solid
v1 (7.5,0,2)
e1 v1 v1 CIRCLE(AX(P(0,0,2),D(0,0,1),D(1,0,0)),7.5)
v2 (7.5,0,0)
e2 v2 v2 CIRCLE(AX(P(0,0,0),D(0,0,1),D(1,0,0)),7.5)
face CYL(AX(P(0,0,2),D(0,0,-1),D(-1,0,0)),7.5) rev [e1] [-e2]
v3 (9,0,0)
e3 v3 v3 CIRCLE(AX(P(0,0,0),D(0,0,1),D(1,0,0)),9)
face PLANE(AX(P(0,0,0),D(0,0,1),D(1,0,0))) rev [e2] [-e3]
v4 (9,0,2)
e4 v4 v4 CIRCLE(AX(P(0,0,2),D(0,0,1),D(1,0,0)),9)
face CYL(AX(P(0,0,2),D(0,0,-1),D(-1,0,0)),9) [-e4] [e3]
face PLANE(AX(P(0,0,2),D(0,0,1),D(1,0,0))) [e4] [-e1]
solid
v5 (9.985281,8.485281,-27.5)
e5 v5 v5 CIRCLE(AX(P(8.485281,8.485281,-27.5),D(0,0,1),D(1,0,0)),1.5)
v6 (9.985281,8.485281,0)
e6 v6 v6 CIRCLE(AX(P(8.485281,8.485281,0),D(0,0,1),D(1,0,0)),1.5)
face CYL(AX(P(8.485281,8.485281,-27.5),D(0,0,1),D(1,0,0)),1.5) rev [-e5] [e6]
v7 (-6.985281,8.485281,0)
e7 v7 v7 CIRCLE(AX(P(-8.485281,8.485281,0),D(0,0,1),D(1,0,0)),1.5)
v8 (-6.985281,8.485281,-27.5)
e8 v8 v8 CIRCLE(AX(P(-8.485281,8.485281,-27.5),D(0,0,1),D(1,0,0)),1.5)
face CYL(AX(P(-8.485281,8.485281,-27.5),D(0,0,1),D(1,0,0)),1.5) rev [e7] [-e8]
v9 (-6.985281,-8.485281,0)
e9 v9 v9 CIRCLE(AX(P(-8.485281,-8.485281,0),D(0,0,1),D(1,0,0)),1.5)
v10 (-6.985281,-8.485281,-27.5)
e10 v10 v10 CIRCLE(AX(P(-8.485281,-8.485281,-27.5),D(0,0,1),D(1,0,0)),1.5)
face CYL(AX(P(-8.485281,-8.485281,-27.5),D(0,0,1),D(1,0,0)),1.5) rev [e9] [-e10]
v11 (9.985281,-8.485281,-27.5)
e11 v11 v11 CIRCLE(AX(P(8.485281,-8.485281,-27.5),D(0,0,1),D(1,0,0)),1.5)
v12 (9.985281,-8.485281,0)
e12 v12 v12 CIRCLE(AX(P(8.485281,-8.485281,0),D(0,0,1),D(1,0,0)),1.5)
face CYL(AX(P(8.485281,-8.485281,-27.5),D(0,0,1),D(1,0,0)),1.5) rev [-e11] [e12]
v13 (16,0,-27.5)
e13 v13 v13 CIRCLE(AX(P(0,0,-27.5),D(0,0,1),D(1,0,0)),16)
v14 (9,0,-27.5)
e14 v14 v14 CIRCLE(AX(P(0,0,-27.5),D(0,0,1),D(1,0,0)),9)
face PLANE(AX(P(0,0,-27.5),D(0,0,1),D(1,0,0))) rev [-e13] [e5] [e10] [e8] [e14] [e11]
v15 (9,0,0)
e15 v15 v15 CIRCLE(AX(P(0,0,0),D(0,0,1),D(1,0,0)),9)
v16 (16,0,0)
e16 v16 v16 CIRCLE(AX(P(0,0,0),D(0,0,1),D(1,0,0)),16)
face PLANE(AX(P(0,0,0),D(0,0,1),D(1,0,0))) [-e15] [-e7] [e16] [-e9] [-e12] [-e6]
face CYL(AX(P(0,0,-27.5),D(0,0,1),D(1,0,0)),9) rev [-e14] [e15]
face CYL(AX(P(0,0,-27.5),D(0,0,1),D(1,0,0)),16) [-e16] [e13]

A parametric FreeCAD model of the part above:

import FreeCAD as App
import Part
import Sketcher

doc = App.newDocument("Part")
body = doc.addObject("PartDesign::Body", "Body")

sketch1 = doc.addObject("Sketcher::SketchObject", "Sketch")
body.addObject(sketch1)
sketch1.AttachmentSupport = (doc.XY_Plane, [""])
sketch1.MapMode = "FlatFace"
sketch1.addGeometry(Part.Circle(App.Vector(0, 0, 0), App.Vector(0, 0, 1), 16), False)
sketch1.addGeometry(Part.Circle(App.Vector(-8.5, -8.5, 0), App.Vector(0, 0, 1), 1.5), False)
sketch1.addGeometry(Part.Circle(App.Vector(8.5, -8.5, 0), App.Vector(0, 0, 1), 1.5), False)
sketch1.addGeometry(Part.Circle(App.Vector(-8.5, 8.5, 0), App.Vector(0, 0, 1), 1.5), False)
sketch1.addGeometry(Part.Circle(App.Vector(0, 0, 0), App.Vector(0, 0, 1), 9), False)
sketch1.addGeometry(Part.Circle(App.Vector(8.5, 8.5, 0), App.Vector(0, 0, 1), 1.5), False)
sketch1.addConstraint(Sketcher.Constraint("Coincident", 0, 3, -1, 1))
sketch1.addConstraint(Sketcher.Constraint("Coincident", 4, 3, -1, 1))
sketch1.addConstraint(Sketcher.Constraint("Equal", 1, 2))
sketch1.addConstraint(Sketcher.Constraint("Equal", 2, 3))
sketch1.addConstraint(Sketcher.Constraint("Equal", 3, 5))
sketch1.addConstraint(Sketcher.Constraint("Symmetric", 2, 3, 3, 3, -1, 1))
sketch1.addConstraint(Sketcher.Constraint("Symmetric", 1, 3, 5, 3, -1, 1))
sketch1.addConstraint(Sketcher.Constraint("Symmetric", 1, 3, 2, 3, -2))
sketch1.addConstraint(Sketcher.Constraint("Diameter", 0, 32.0))
sketch1.addConstraint(Sketcher.Constraint("Diameter", 1, 3.0))
sketch1.addConstraint(Sketcher.Constraint("Diameter", 4, 18.0))
sketch1.addConstraint(Sketcher.Constraint("DistanceX", 1, 3, -1, 1, 8.485281))
sketch1.addConstraint(Sketcher.Constraint("DistanceY", 1, 3, -1, 1, 8.485281))
pad1 = doc.addObject("PartDesign::Pad", "Pad")
body.addObject(pad1)
pad1.Profile = sketch1
pad1.Length = 27.5
pad1.Reversed = True
body2 = doc.addObject("PartDesign::Body", "Body001")

sketch2 = doc.addObject("Sketcher::SketchObject", "Sketch001")
body2.addObject(sketch2)
sketch2.AttachmentSupport = (doc.getObject("XY_Plane001"), [""])
sketch2.MapMode = "FlatFace"
sketch2.addGeometry(Part.Circle(App.Vector(0, 0, 0), App.Vector(0, 0, 1), 9), False)
sketch2.addGeometry(Part.Circle(App.Vector(0, 0, 0), App.Vector(0, 0, 1), 8), False)
sketch2.addConstraint(Sketcher.Constraint("Coincident", 0, 3, -1, 1))
sketch2.addConstraint(Sketcher.Constraint("Coincident", 1, 3, -1, 1))
sketch2.addConstraint(Sketcher.Constraint("Diameter", 0, 18.0))
sketch2.addConstraint(Sketcher.Constraint("Diameter", 1, 15.0))
pad2 = doc.addObject("PartDesign::Pad", "Pad001")
body2.addObject(pad2)
pad2.Profile = sketch2
pad2.Length = 2

doc.recompute()
